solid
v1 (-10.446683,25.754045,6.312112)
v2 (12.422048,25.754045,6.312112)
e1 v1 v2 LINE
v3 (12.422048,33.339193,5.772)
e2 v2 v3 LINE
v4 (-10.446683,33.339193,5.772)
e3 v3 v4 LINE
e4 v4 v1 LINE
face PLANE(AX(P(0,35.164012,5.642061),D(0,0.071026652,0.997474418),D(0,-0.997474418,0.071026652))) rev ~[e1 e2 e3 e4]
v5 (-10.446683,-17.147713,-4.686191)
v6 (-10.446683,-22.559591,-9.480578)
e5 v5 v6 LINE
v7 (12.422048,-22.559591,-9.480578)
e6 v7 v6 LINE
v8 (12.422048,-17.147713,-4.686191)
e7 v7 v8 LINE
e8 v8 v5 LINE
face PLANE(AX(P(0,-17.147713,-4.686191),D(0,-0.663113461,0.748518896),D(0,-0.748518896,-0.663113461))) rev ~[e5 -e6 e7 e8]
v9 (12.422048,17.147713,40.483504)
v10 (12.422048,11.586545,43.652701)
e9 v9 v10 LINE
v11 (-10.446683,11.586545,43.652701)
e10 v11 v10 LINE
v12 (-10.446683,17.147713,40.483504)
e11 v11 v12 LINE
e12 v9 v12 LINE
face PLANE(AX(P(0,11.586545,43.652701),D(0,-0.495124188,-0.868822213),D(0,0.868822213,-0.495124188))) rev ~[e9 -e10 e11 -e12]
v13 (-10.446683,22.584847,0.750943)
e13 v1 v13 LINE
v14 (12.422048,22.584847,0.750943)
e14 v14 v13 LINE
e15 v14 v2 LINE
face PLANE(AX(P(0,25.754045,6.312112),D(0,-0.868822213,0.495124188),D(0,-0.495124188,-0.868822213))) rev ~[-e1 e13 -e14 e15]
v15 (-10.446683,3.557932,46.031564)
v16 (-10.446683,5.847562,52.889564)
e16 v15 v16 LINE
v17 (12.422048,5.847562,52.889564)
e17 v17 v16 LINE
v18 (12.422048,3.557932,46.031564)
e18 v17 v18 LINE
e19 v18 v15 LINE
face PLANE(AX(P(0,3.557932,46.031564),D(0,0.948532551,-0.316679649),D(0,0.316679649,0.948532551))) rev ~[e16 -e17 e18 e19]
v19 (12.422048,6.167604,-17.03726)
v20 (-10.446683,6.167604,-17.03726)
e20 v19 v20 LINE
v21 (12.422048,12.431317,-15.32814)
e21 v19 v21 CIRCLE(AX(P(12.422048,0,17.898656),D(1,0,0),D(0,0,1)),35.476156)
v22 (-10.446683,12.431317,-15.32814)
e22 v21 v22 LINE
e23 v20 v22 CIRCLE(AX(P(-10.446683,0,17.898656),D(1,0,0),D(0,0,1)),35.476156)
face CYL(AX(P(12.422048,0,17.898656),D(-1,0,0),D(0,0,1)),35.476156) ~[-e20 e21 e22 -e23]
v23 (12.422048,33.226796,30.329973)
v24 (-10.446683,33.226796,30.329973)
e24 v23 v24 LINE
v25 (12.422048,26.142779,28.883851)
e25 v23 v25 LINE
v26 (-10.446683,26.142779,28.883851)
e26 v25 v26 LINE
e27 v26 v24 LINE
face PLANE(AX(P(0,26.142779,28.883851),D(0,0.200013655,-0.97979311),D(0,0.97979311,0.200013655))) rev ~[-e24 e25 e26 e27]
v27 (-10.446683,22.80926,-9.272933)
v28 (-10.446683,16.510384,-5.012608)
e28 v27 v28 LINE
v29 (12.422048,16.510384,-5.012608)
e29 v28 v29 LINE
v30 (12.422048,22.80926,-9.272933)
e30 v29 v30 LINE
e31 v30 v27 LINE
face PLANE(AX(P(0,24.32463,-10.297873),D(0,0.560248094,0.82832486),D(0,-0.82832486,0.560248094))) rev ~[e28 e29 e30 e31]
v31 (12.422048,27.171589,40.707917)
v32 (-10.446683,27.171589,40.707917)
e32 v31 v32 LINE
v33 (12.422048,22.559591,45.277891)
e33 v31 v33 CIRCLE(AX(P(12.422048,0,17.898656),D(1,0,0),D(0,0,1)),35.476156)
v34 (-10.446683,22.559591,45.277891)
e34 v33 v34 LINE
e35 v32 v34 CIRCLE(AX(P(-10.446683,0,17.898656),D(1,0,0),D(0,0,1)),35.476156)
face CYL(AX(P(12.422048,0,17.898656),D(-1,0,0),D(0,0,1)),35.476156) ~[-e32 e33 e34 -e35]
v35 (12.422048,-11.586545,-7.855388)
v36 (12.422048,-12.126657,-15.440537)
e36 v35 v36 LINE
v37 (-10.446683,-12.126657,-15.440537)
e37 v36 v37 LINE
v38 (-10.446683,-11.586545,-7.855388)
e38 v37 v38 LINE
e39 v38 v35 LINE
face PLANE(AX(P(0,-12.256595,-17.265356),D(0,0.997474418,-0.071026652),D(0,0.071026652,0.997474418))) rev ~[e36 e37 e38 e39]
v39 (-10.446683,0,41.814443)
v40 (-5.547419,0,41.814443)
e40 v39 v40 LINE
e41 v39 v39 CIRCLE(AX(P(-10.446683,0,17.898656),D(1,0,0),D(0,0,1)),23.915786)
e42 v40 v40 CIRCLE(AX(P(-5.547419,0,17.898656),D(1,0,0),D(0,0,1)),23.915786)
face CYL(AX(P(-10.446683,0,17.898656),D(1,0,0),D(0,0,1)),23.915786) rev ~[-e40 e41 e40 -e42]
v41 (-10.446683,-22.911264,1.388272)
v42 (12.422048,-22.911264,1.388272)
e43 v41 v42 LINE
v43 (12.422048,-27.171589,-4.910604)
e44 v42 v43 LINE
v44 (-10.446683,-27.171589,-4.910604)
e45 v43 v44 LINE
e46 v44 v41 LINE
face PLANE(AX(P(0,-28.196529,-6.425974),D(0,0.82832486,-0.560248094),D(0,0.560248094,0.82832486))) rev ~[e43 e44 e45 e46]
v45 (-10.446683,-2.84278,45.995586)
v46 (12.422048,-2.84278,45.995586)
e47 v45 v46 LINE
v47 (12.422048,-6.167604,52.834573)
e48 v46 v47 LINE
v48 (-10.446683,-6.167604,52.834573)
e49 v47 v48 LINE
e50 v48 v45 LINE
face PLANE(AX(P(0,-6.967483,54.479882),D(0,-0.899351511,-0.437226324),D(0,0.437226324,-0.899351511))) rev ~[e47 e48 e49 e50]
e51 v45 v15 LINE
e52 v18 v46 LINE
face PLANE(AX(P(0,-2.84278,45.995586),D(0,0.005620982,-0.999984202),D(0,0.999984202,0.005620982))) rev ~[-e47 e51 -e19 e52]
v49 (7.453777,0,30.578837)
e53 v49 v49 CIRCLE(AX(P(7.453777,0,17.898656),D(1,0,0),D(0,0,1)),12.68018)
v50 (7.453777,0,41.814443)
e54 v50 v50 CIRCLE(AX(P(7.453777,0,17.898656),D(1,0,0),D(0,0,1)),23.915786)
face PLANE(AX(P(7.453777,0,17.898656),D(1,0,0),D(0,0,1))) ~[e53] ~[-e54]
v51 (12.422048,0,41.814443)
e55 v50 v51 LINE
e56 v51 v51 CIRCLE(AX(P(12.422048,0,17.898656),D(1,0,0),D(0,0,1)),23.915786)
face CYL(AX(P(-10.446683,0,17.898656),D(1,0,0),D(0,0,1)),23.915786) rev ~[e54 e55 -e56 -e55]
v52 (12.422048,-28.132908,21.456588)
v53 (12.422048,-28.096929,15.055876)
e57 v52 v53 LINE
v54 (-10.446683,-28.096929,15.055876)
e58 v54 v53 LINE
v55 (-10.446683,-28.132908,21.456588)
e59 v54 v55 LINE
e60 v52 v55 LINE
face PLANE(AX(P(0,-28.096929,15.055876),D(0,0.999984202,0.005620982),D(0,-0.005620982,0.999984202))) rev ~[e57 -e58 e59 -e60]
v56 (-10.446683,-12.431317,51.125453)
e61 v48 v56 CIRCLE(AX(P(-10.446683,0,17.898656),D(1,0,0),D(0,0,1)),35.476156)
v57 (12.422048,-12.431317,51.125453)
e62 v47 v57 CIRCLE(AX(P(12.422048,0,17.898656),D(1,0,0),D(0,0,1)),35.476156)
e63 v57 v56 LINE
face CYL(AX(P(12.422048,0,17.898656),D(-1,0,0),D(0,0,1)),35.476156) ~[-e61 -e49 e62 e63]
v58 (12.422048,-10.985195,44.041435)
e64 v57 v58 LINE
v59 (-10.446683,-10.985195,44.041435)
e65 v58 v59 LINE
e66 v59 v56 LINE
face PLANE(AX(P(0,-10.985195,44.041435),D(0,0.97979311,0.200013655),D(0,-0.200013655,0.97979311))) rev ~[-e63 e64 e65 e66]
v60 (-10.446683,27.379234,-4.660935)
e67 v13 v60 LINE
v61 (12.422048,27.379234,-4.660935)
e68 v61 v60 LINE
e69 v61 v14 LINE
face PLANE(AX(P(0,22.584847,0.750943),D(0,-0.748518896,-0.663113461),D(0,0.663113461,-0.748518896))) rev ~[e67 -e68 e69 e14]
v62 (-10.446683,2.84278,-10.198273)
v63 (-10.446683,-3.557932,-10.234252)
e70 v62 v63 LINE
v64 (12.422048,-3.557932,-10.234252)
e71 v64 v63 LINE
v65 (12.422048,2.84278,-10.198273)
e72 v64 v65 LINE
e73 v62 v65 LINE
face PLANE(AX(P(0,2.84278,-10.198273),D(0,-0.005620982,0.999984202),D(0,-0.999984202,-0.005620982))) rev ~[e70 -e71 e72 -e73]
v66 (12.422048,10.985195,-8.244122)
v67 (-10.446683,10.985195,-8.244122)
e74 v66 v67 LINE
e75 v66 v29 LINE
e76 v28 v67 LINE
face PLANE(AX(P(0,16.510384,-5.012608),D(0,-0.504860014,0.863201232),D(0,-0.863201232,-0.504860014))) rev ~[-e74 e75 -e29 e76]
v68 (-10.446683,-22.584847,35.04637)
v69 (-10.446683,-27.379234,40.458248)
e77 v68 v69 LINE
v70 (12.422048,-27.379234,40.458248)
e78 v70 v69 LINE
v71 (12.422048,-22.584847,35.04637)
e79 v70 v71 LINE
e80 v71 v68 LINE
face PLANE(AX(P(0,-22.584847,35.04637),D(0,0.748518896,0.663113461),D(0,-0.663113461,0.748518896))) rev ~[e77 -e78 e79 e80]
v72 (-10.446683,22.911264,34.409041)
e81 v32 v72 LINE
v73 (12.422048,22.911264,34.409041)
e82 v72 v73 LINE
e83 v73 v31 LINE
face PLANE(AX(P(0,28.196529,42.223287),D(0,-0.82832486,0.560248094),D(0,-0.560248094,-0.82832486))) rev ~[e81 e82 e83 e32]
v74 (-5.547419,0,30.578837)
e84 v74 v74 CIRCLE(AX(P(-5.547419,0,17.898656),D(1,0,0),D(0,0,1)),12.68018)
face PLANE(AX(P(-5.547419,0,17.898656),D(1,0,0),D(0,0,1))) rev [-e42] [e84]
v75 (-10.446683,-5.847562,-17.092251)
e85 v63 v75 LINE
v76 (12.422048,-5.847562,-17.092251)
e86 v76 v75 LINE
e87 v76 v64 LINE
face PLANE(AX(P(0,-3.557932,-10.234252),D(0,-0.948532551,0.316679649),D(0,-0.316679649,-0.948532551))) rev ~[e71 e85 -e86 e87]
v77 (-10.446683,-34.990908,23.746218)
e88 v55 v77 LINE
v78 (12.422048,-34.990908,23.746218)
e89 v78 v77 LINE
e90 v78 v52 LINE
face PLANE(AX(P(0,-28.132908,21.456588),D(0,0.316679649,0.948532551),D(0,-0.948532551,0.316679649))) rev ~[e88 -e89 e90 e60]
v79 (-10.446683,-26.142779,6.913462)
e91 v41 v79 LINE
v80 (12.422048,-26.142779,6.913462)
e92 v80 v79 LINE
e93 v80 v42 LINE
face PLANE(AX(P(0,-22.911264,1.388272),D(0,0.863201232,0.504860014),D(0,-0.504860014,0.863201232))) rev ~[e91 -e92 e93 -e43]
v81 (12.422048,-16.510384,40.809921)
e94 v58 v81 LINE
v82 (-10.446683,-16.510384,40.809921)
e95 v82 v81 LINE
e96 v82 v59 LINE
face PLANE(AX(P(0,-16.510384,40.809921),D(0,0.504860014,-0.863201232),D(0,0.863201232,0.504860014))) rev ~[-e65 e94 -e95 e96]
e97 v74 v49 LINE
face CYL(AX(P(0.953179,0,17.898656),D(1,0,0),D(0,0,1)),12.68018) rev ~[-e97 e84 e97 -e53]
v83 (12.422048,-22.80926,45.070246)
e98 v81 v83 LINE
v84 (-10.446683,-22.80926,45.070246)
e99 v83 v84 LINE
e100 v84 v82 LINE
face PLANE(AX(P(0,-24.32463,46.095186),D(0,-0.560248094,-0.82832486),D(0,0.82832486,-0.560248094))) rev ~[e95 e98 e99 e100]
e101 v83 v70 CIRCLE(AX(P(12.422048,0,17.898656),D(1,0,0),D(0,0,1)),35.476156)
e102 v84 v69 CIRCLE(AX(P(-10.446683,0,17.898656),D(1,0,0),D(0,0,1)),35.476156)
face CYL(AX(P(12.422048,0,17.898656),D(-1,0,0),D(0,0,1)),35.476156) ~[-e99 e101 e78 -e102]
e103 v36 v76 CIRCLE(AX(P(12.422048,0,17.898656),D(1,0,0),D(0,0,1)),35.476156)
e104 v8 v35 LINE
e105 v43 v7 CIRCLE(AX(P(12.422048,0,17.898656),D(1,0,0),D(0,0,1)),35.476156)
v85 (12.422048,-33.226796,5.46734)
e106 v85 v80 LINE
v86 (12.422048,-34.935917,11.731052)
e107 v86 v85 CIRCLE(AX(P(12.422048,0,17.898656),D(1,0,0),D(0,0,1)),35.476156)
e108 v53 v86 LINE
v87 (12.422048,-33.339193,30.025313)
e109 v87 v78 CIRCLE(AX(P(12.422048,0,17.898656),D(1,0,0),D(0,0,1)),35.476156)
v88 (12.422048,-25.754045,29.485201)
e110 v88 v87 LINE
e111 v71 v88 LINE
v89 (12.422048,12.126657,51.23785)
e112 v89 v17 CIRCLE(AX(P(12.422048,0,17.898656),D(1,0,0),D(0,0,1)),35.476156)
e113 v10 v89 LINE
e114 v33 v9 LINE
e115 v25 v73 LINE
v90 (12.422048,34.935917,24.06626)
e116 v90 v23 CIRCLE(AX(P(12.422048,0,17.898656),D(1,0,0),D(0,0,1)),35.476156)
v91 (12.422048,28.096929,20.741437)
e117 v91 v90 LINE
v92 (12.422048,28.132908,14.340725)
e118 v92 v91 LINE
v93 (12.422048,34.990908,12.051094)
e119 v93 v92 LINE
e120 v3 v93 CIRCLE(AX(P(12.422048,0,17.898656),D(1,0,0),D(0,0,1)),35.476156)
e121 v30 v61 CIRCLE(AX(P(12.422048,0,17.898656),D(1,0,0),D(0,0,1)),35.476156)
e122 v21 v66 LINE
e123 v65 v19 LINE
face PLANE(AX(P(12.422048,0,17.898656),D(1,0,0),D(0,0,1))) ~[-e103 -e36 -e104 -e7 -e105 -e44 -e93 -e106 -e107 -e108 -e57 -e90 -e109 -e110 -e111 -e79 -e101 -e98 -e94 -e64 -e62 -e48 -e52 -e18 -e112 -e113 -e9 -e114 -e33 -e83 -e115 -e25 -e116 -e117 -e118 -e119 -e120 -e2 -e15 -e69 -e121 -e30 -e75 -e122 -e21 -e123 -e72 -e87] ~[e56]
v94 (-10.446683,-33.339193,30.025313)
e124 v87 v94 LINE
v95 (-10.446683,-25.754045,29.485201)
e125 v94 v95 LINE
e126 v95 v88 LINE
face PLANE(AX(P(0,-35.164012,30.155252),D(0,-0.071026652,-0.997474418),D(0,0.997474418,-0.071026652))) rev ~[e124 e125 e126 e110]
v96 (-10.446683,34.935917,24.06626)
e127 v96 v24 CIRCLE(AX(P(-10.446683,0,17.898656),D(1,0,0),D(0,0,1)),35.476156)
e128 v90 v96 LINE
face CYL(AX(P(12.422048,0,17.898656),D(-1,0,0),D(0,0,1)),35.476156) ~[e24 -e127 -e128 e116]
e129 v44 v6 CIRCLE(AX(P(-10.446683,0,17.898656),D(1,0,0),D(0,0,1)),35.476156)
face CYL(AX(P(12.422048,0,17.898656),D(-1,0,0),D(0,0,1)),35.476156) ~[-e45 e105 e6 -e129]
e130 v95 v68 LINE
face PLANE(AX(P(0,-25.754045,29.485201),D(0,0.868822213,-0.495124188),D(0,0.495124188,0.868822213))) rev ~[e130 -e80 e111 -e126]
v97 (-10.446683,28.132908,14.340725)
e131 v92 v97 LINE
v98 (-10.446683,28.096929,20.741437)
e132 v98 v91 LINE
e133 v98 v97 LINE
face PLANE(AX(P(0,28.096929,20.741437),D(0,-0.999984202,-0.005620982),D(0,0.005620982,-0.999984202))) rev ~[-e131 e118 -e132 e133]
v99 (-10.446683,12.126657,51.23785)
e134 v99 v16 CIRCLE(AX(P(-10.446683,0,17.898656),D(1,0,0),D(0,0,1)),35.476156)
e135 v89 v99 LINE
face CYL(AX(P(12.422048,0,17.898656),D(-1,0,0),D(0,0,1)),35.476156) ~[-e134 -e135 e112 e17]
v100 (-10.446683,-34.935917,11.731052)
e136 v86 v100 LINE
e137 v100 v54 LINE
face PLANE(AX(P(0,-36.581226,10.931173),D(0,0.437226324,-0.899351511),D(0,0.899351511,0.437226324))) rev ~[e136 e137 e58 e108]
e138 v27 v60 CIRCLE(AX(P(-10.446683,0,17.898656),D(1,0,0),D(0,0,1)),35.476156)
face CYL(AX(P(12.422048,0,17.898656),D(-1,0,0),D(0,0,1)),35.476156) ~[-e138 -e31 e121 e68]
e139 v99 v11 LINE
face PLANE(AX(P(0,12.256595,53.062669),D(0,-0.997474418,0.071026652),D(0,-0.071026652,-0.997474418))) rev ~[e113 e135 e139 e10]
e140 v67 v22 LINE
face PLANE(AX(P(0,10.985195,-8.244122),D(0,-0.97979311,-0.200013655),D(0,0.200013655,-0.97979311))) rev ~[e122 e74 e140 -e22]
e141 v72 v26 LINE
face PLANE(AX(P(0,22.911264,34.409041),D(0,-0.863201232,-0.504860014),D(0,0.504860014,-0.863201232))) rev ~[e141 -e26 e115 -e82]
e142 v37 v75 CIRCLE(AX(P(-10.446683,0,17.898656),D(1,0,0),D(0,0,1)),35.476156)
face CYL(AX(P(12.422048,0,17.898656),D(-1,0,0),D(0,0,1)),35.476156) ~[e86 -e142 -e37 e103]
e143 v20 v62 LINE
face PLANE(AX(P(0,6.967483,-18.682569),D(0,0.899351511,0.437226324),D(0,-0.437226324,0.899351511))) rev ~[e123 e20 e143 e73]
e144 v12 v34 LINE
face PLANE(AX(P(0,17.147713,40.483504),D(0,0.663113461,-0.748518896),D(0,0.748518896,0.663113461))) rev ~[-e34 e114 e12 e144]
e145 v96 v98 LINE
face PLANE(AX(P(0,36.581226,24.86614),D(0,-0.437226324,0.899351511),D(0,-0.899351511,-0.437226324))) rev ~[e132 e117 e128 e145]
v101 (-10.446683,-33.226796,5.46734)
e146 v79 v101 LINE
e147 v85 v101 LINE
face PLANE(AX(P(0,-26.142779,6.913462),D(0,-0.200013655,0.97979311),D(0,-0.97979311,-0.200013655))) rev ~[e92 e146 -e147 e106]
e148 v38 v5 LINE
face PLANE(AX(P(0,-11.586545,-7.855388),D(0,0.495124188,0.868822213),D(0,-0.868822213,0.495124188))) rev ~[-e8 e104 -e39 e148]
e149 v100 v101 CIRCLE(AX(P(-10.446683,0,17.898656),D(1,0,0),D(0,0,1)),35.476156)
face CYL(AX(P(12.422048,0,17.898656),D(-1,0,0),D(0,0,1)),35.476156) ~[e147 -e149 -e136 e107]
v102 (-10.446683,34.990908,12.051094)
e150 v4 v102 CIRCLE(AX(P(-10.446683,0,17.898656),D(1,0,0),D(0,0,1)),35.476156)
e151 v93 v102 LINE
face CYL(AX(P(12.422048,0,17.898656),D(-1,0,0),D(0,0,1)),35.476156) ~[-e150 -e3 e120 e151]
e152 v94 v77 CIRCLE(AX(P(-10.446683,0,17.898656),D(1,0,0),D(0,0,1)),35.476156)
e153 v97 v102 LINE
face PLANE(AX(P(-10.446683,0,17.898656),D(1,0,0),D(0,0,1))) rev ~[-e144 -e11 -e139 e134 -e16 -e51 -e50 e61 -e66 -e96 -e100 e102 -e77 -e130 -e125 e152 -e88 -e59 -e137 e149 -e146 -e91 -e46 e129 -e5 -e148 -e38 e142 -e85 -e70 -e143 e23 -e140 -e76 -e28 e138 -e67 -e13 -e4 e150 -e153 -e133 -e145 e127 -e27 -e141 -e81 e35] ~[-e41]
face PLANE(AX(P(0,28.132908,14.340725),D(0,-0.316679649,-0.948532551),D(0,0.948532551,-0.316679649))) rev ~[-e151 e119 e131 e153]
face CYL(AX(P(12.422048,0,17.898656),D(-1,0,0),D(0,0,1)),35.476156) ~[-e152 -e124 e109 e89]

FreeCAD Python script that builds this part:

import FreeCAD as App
import Part
import Sketcher

V = App.Vector
Q = App.Units.Quantity


def add_polygon(sketch, points):
    """Adds a closed chain of lines whose ends are joined by coincident constraints."""
    first, n = sketch.GeometryCount, len(points)
    for a, b in zip(points, points[1:] + points[:1]):
        sketch.addGeometry(Part.LineSegment(App.Vector(*a, 0), App.Vector(*b, 0)), False)
    for i in range(n):
        sketch.addConstraint(Sketcher.Constraint("Coincident", first + i, 2, first + (i + 1) % n, 1))

doc = App.newDocument("Part")
body = doc.addObject("PartDesign::Body", "Body")

# Sketch on XZ plane
sketch1 = body.newObject("Sketcher::SketchObject", "Sketch")
sketch1.AttachmentSupport = (doc.getObject("XZ_Plane"), [""])
sketch1.MapMode = "FlatFace"
add_polygon(sketch1, [(12.4, 53.4), (-10.4, 53.4), (-10.4, 41.8), (-5.5, 41.8), (-5.5, 30.6), (7.5, 30.6), (7.5, 41.8), (12.4, 41.8)])  # lines 0-7
sketch1.addGeometry(Part.LineSegment(V(-10.4, 17.9, 0), V(12.4, 17.9, 0)), True)  # axis
sketch1.addConstraint(Sketcher.Constraint("Horizontal", 0))
sketch1.addConstraint(Sketcher.Constraint("Vertical", 1))
sketch1.addConstraint(Sketcher.Constraint("Horizontal", 2))
sketch1.addConstraint(Sketcher.Constraint("Vertical", 3))
sketch1.addConstraint(Sketcher.Constraint("Horizontal", 4))
sketch1.addConstraint(Sketcher.Constraint("Vertical", 5))
sketch1.addConstraint(Sketcher.Constraint("Horizontal", 6))
sketch1.addConstraint(Sketcher.Constraint("Vertical", 7))
sketch1.addConstraint(Sketcher.Constraint("Horizontal", 8))
sketch1.addConstraint(Sketcher.Constraint("Horizontal", 2, 2, 5, 2))
sketch1.addConstraint(Sketcher.Constraint("Vertical", 1, 2, 8, 1))
sketch1.addConstraint(Sketcher.Constraint("Vertical", 7, 2, 8, 2))
sketch1.addConstraint(Sketcher.Constraint("DistanceX", 0, 2, 0, 1, Q("22.86873 mm")))
sketch1.addConstraint(Sketcher.Constraint("DistanceX", 6, 1, 6, 2, Q("4.968271 mm")))
sketch1.addConstraint(Sketcher.Constraint("DistanceY", 1, 2, 1, 1, Q("11.560369 mm")))
sketch1.addConstraint(Sketcher.Constraint("DistanceX", 2, 1, 2, 2, Q("4.899263 mm")))
sketch1.addConstraint(Sketcher.Constraint("DistanceY", 3, 2, 3, 1, Q("11.235606 mm")))
sketch1.addConstraint(Sketcher.Constraint("DistanceX", 2, 2, -1, 1, Q("5.547419 mm")))
sketch1.addConstraint(Sketcher.Constraint("DistanceY", 8, 1, 3, 2, Q("12.68018 mm")))
sketch1.addConstraint(Sketcher.Constraint("DistanceY", -1, 1, 0, 2, Q("53.374812 mm")))
revolution = body.newObject("PartDesign::Revolution", "Revolution")
revolution.Profile = sketch1
revolution.ReferenceAxis = (sketch1, ["Axis0"])
revolution.Angle = 360

# Sketch on YZ plane
sketch2 = body.newObject("Sketcher::SketchObject", "Sketch001")
sketch2.AttachmentSupport = (doc.getObject("YZ_Plane"), [""])
sketch2.MapMode = "FlatFace"
add_polygon(sketch2, [(7, 55), (-7, 54), (-3, 46), (4, 46)])  # lines 0-3
sketch2.addConstraint(Sketcher.Constraint("Distance", 0, Q("13.656278 mm")))
sketch2.addConstraint(Sketcher.Constraint("DistanceX", 1, 2, -1, 1, Q("2.84278 mm")))
sketch2.addConstraint(Sketcher.Constraint("DistanceX", -1, 1, 2, 2, Q("3.557932 mm")))
sketch2.addConstraint(Sketcher.Constraint("DistanceY", -1, 1, 3, 2, Q("55.329941 mm")))
sketch2.addConstraint(Sketcher.Constraint("DistanceY", 1, 2, 2, 2, Q("0.035979 mm")))
sketch2.addConstraint(Sketcher.Constraint("DistanceX", 2, 2, 3, 2, Q("3.104381 mm")))
sketch2.addConstraint(Sketcher.Constraint("DistanceY", 0, 2, 3, 2, Q("0.850059 mm")))
sketch2.addConstraint(Sketcher.Constraint("Distance", 1, Q("9.433794 mm")))
pocket1 = body.newObject("PartDesign::Pocket", "Pocket")
pocket1.Profile = sketch2
pocket1.Length = 71.107661
pocket1.Midplane = True
doc.recompute()

datumline = body.newObject("PartDesign::Line", "DatumLine")
datumline.Placement = App.Placement(V(0, 0, 17.898656), App.Rotation(V(0, 0, 1), V(1, 0, 0)))
polarpattern = body.newObject("PartDesign::PolarPattern", "PolarPattern")
polarpattern.Originals = [pocket1]
polarpattern.Axis = (datumline, [""])
polarpattern.Angle = 360
polarpattern.Occurrences = 12
body.Tip = polarpattern

doc.recompute()
